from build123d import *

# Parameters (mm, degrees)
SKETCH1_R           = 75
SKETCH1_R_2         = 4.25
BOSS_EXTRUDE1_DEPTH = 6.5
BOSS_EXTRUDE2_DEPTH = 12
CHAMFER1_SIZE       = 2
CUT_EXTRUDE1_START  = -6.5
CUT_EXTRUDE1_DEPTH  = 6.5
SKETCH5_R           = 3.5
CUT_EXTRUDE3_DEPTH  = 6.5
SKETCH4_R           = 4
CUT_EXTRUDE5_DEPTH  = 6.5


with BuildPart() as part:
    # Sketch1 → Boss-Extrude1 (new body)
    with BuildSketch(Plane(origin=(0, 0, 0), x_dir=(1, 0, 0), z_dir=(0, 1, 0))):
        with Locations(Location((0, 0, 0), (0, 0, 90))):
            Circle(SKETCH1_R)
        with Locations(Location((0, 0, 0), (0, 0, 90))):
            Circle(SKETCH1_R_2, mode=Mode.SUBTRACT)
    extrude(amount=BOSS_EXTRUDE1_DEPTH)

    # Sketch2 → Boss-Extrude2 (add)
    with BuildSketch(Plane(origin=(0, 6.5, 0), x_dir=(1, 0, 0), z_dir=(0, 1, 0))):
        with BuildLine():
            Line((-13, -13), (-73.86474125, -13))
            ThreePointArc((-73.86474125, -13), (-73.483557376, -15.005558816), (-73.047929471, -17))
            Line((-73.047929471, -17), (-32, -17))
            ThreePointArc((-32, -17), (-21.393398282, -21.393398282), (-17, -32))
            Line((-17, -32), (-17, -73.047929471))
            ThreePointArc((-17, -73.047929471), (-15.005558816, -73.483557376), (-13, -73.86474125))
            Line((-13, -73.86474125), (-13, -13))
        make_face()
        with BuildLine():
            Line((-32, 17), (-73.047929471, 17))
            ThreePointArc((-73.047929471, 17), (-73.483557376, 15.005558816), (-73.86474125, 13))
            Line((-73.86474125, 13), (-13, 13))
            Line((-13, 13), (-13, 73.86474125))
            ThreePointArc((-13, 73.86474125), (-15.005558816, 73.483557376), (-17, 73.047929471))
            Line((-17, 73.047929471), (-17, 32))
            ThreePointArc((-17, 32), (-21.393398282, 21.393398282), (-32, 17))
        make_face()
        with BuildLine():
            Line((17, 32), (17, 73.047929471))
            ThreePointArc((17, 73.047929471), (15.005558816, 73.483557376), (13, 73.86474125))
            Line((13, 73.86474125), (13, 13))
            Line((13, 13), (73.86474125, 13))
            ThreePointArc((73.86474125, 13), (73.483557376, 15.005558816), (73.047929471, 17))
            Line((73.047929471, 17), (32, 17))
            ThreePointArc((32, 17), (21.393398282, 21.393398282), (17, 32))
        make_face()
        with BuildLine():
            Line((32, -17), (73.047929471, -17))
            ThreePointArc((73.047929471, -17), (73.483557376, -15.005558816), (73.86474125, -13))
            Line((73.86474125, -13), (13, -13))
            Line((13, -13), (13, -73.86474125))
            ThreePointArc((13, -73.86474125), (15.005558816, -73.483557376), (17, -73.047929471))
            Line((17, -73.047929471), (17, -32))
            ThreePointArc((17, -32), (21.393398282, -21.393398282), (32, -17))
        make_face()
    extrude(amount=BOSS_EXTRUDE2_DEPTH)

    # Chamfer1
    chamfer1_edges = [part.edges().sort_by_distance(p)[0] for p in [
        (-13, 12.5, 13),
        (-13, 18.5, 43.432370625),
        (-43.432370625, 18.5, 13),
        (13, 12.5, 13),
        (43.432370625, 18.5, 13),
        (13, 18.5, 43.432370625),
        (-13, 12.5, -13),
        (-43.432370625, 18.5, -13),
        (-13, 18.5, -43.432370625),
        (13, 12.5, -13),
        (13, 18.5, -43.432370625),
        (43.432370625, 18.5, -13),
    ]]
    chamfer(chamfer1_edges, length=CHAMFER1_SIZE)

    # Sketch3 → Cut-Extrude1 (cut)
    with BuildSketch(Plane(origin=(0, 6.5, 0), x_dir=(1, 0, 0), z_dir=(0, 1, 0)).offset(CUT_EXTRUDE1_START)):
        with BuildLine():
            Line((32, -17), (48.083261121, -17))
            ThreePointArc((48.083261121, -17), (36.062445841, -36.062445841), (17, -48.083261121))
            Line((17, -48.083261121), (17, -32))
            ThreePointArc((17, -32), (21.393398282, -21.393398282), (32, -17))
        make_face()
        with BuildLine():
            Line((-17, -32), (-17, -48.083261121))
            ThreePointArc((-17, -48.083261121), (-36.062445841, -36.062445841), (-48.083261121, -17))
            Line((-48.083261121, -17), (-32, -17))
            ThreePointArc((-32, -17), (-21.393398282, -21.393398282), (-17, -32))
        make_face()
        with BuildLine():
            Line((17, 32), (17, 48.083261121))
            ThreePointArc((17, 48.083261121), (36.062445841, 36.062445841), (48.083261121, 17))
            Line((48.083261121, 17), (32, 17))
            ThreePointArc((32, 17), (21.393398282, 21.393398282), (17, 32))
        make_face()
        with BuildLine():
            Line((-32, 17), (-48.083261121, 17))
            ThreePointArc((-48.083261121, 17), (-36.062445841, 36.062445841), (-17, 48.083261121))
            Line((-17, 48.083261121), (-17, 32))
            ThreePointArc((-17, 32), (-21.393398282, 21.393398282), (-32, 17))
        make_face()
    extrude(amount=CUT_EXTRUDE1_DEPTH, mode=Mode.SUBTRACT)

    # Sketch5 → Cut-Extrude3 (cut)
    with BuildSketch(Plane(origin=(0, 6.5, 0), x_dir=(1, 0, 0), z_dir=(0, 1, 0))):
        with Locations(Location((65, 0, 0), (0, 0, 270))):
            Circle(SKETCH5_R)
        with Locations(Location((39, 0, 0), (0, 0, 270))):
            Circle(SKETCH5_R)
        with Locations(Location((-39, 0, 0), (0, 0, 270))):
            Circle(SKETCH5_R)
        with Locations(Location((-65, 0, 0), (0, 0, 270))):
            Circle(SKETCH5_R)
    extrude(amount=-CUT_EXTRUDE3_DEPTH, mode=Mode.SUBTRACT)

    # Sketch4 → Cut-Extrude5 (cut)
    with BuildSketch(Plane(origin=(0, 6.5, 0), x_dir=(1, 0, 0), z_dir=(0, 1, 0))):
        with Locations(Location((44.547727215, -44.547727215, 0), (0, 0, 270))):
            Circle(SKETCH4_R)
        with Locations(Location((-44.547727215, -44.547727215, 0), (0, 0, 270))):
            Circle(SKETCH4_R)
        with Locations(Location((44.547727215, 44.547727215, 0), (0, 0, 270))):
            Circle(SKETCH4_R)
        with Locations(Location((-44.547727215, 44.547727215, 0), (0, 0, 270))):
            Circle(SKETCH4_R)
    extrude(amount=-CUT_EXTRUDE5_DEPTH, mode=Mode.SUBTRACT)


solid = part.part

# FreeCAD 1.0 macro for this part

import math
import FreeCAD as App
import Part
import Sketcher


def edges_at(feature, points):
    """Names of the edges that pass closest to the given points."""
    edges = feature.Shape.Edges
    near = lambda p: min(range(len(edges)), key=lambda i: edges[i].distToShape(Part.Vertex(*p))[0])
    return sorted({f"Edge{near(p) + 1}" for p in points})

doc = App.newDocument("Part")
body = doc.addObject("PartDesign::Body", "Body")

sketch1 = doc.addObject("Sketcher::SketchObject", "Sketch")
body.addObject(sketch1)
sketch1.AttachmentSupport = (doc.XZ_Plane, [""])
sketch1.MapMode = "FlatFace"
sketch1.addGeometry([
    Part.Circle(App.Vector(0, 0, 0), App.Vector(0, 0, 1), 75),
    Part.Circle(App.Vector(0, 0, 0), App.Vector(0, 0, 1), 4.2),
], False)
sketch1.addConstraint([
    Sketcher.Constraint("Coincident", 0, 3, -1, 1),
    Sketcher.Constraint("Coincident", 1, 3, -1, 1),
    Sketcher.Constraint("Diameter", 0, 150.0),
    Sketcher.Constraint("Diameter", 1, 8.5),
])
pad1 = doc.addObject("PartDesign::Pad", "Pad")
body.addObject(pad1)
pad1.Profile = sketch1
pad1.Length = 6.5
pad1.Reversed = True

sketch2 = doc.addObject("Sketcher::SketchObject", "Sketch001")
body.addObject(sketch2)
sketch2.AttachmentSupport = (doc.XZ_Plane, [""])
sketch2.MapMode = "FlatFace"
sketch2.AttachmentOffset = App.Placement(App.Vector(0, 0, -6.5), App.Rotation())
sketch2.addGeometry([
    Part.LineSegment(App.Vector(-13, 13, 0), App.Vector(-73.9, 13, 0)),
    Part.ArcOfCircle(Part.Circle(App.Vector(0, 0, 0), App.Vector(0, 0, 1), 75), math.radians(166.9), math.radians(170.02)),
    Part.LineSegment(App.Vector(-73, 17, 0), App.Vector(-32, 17, 0)),
    Part.ArcOfCircle(Part.Circle(App.Vector(-32, 32, 0), App.Vector(0, 0, 1), 15), math.radians(-90), math.radians(0)),
    Part.LineSegment(App.Vector(-17, 32, 0), App.Vector(-17, 73, 0)),
    Part.ArcOfCircle(Part.Circle(App.Vector(0, 0, 0), App.Vector(0, 0, 1), 75), math.radians(99.98), math.radians(103.1)),
    Part.LineSegment(App.Vector(-13, 73.9, 0), App.Vector(-13, 13, 0)),
    Part.LineSegment(App.Vector(-32, -17, 0), App.Vector(-73, -17, 0)),
    Part.ArcOfCircle(Part.Circle(App.Vector(0, 0, 0), App.Vector(0, 0, 1), 75), math.radians(-170.02), math.radians(-166.9)),
    Part.LineSegment(App.Vector(-73.9, -13, 0), App.Vector(-13, -13, 0)),
    Part.LineSegment(App.Vector(-13, -13, 0), App.Vector(-13, -73.9, 0)),
    Part.ArcOfCircle(Part.Circle(App.Vector(0, 0, 0), App.Vector(0, 0, 1), 75), math.radians(-103.1), math.radians(-99.98)),
    Part.LineSegment(App.Vector(-17, -73, 0), App.Vector(-17, -32, 0)),
    Part.ArcOfCircle(Part.Circle(App.Vector(-32, -32, 0), App.Vector(0, 0, 1), 15), math.radians(0), math.radians(90)),
    Part.LineSegment(App.Vector(17, -32, 0), App.Vector(17, -73, 0)),
    Part.ArcOfCircle(Part.Circle(App.Vector(0, 0, 0), App.Vector(0, 0, 1), 75), math.radians(-80.02), math.radians(-76.9)),
    Part.LineSegment(App.Vector(13, -73.9, 0), App.Vector(13, -13, 0)),
    Part.LineSegment(App.Vector(13, -13, 0), App.Vector(73.9, -13, 0)),
    Part.ArcOfCircle(Part.Circle(App.Vector(0, 0, 0), App.Vector(0, 0, 1), 75), math.radians(-13.1), math.radians(-9.98)),
    Part.LineSegment(App.Vector(73, -17, 0), App.Vector(32, -17, 0)),
    Part.ArcOfCircle(Part.Circle(App.Vector(32, -32, 0), App.Vector(0, 0, 1), 15), math.radians(90), math.radians(180)),
    Part.LineSegment(App.Vector(32, 17, 0), App.Vector(73, 17, 0)),
    Part.ArcOfCircle(Part.Circle(App.Vector(0, 0, 0), App.Vector(0, 0, 1), 75), math.radians(9.98), math.radians(13.1)),
    Part.LineSegment(App.Vector(73.9, 13, 0), App.Vector(13, 13, 0)),
    Part.LineSegment(App.Vector(13, 13, 0), App.Vector(13, 73.9, 0)),
    Part.ArcOfCircle(Part.Circle(App.Vector(0, 0, 0), App.Vector(0, 0, 1), 75), math.radians(76.9), math.radians(80.02)),
    Part.LineSegment(App.Vector(17, 73, 0), App.Vector(17, 32, 0)),
    Part.ArcOfCircle(Part.Circle(App.Vector(32, 32, 0), App.Vector(0, 0, 1), 15), math.radians(180), math.radians(270)),
], False)
sketch2.addConstraint([
    Sketcher.Constraint("Coincident", 0, 2, 1, 2),
    Sketcher.Constraint("Coincident", 1, 1, 2, 1),
    Sketcher.Constraint("Tangent", 2, 2, 3, 1),
    Sketcher.Constraint("Tangent", 3, 2, 4, 1),
    Sketcher.Constraint("Coincident", 4, 2, 5, 2),
    Sketcher.Constraint("Coincident", 5, 1, 6, 1),
    Sketcher.Constraint("Coincident", 6, 2, 0, 1),
    Sketcher.Constraint("Coincident", 7, 2, 8, 2),
    Sketcher.Constraint("Coincident", 8, 1, 9, 1),
    Sketcher.Constraint("Coincident", 9, 2, 10, 1),
    Sketcher.Constraint("Coincident", 10, 2, 11, 2),
    Sketcher.Constraint("Coincident", 11, 1, 12, 1),
    Sketcher.Constraint("Tangent", 12, 2, 13, 1),
    Sketcher.Constraint("Tangent", 13, 2, 7, 1),
    Sketcher.Constraint("Coincident", 14, 2, 15, 2),
    Sketcher.Constraint("Coincident", 15, 1, 16, 1),
    Sketcher.Constraint("Coincident", 16, 2, 17, 1),
    Sketcher.Constraint("Coincident", 17, 2, 18, 2),
    Sketcher.Constraint("Coincident", 18, 1, 19, 1),
    Sketcher.Constraint("Tangent", 19, 2, 20, 1),
    Sketcher.Constraint("Tangent", 20, 2, 14, 1),
    Sketcher.Constraint("Coincident", 21, 2, 22, 2),
    Sketcher.Constraint("Coincident", 22, 1, 23, 1),
    Sketcher.Constraint("Coincident", 23, 2, 24, 1),
    Sketcher.Constraint("Coincident", 24, 2, 25, 2),
    Sketcher.Constraint("Coincident", 25, 1, 26, 1),
    Sketcher.Constraint("Tangent", 26, 2, 27, 1),
    Sketcher.Constraint("Tangent", 27, 2, 21, 1),
    Sketcher.Constraint("Horizontal", 0),
    Sketcher.Constraint("Horizontal", 2),
    Sketcher.Constraint("Vertical", 4),
    Sketcher.Constraint("Vertical", 6),
    Sketcher.Constraint("Horizontal", 7),
    Sketcher.Constraint("Horizontal", 9),
    Sketcher.Constraint("Vertical", 10),
    Sketcher.Constraint("Vertical", 12),
    Sketcher.Constraint("Vertical", 14),
    Sketcher.Constraint("Vertical", 16),
    Sketcher.Constraint("Horizontal", 17),
    Sketcher.Constraint("Horizontal", 19),
    Sketcher.Constraint("Horizontal", 21),
    Sketcher.Constraint("Horizontal", 23),
    Sketcher.Constraint("Vertical", 24),
    Sketcher.Constraint("Vertical", 26),
    Sketcher.Constraint("Coincident", 1, 3, -1, 1),
    Sketcher.Constraint("Coincident", 5, 3, -1, 1),
    Sketcher.Constraint("Coincident", 8, 3, -1, 1),
    Sketcher.Constraint("Coincident", 11, 3, -1, 1),
    Sketcher.Constraint("Coincident", 15, 3, -1, 1),
    Sketcher.Constraint("Coincident", 18, 3, -1, 1),
    Sketcher.Constraint("Coincident", 22, 3, -1, 1),
    Sketcher.Constraint("Coincident", 25, 3, -1, 1),
    Sketcher.Constraint("Equal", 1, 5),
    Sketcher.Constraint("Equal", 5, 8),
    Sketcher.Constraint("Equal", 8, 11),
    Sketcher.Constraint("Equal", 3, 13),
    Sketcher.Constraint("Equal", 11, 15),
    Sketcher.Constraint("Equal", 15, 18),
    Sketcher.Constraint("Equal", 13, 20),
    Sketcher.Constraint("Equal", 18, 22),
    Sketcher.Constraint("Equal", 22, 25),
    Sketcher.Constraint("Equal", 20, 27),
    Sketcher.Constraint("Symmetric", 3, 3, 20, 3, -1, 1),
    Sketcher.Constraint("Symmetric", 13, 3, 27, 3, -1, 1),
    Sketcher.Constraint("Symmetric", 6, 2, 16, 2, -1, 1),
    Sketcher.Constraint("Symmetric", 9, 2, 23, 2, -1, 1),
    Sketcher.Constraint("Symmetric", 13, 3, 20, 3, -2),
    Sketcher.Constraint("Symmetric", 9, 2, 16, 2, -2),
    Sketcher.Constraint("Equal", 21, 4),
    Sketcher.Constraint("Equal", 23, 6),
    Sketcher.Constraint("Radius", 1, 74.999999),
    Sketcher.Constraint("Radius", 3, 15.0),
    Sketcher.Constraint("DistanceX", 3, 3, -1, 1, 32.0),
    Sketcher.Constraint("DistanceY", -1, 1, 0, 2, 13.0),
])
pad2 = doc.addObject("PartDesign::Pad", "Pad001")
body.addObject(pad2)
pad2.Profile = sketch2
pad2.Length = 12
pad2.Reversed = True
doc.recompute()

chamfer = doc.addObject("PartDesign::Chamfer", "Chamfer")
body.addObject(chamfer)
chamfer.Base = (pad2, edges_at(pad2, [
    (-13, 12.5, 13),
    (-13, 18.5, 43.432),
    (-43.432, 18.5, 13),
    (13, 12.5, 13),
    (43.432, 18.5, 13),
    (13, 18.5, 43.432),
    (-13, 12.5, -13),
    (-43.432, 18.5, -13),
    (-13, 18.5, -43.432),
    (13, 12.5, -13),
    (13, 18.5, -43.432),
    (43.432, 18.5, -13),
]))
chamfer.Size = 2

sketch3 = doc.addObject("Sketcher::SketchObject", "Sketch002")
body.addObject(sketch3)
sketch3.AttachmentSupport = (doc.XZ_Plane, [""])
sketch3.MapMode = "FlatFace"
sketch3.addGeometry([
    Part.LineSegment(App.Vector(48, 17, 0), App.Vector(32, 17, 0)),
    Part.ArcOfCircle(Part.Circle(App.Vector(32, 32, 0), App.Vector(0, 0, 1), 15), math.radians(180), math.radians(270)),
    Part.LineSegment(App.Vector(17, 32, 0), App.Vector(17, 48, 0)),
    Part.ArcOfCircle(Part.Circle(App.Vector(0, 0, 0), App.Vector(0, 0, 1), 51), math.radians(19), math.radians(71)),
    Part.LineSegment(App.Vector(-17, 48, 0), App.Vector(-17, 32, 0)),
    Part.ArcOfCircle(Part.Circle(App.Vector(-32, 32, 0), App.Vector(0, 0, 1), 15), math.radians(-90), math.radians(0)),
    Part.LineSegment(App.Vector(-32, 17, 0), App.Vector(-48, 17, 0)),
    Part.ArcOfCircle(Part.Circle(App.Vector(0, 0, 0), App.Vector(0, 0, 1), 51), math.radians(109), math.radians(161)),
    Part.LineSegment(App.Vector(17, -48, 0), App.Vector(17, -32, 0)),
    Part.ArcOfCircle(Part.Circle(App.Vector(32, -32, 0), App.Vector(0, 0, 1), 15), math.radians(90), math.radians(180)),
    Part.LineSegment(App.Vector(32, -17, 0), App.Vector(48, -17, 0)),
    Part.ArcOfCircle(Part.Circle(App.Vector(0, 0, 0), App.Vector(0, 0, 1), 51), math.radians(-71), math.radians(-19)),
    Part.LineSegment(App.Vector(-48, -17, 0), App.Vector(-32, -17, 0)),
    Part.ArcOfCircle(Part.Circle(App.Vector(-32, -32, 0), App.Vector(0, 0, 1), 15), math.radians(0), math.radians(90)),
    Part.LineSegment(App.Vector(-17, -32, 0), App.Vector(-17, -48, 0)),
    Part.ArcOfCircle(Part.Circle(App.Vector(0, 0, 0), App.Vector(0, 0, 1), 51), math.radians(-161), math.radians(-109)),
], False)
sketch3.addConstraint([
    Sketcher.Constraint("Tangent", 0, 2, 1, 2),
    Sketcher.Constraint("Tangent", 1, 1, 2, 1),
    Sketcher.Constraint("Coincident", 2, 2, 3, 2),
    Sketcher.Constraint("Coincident", 3, 1, 0, 1),
    Sketcher.Constraint("Tangent", 4, 2, 5, 2),
    Sketcher.Constraint("Tangent", 5, 1, 6, 1),
    Sketcher.Constraint("Coincident", 6, 2, 7, 2),
    Sketcher.Constraint("Coincident", 7, 1, 4, 1),
    Sketcher.Constraint("Tangent", 8, 2, 9, 2),
    Sketcher.Constraint("Tangent", 9, 1, 10, 1),
    Sketcher.Constraint("Coincident", 10, 2, 11, 2),
    Sketcher.Constraint("Coincident", 11, 1, 8, 1),
    Sketcher.Constraint("Tangent", 12, 2, 13, 2),
    Sketcher.Constraint("Tangent", 13, 1, 14, 1),
    Sketcher.Constraint("Coincident", 14, 2, 15, 2),
    Sketcher.Constraint("Coincident", 15, 1, 12, 1),
    Sketcher.Constraint("Horizontal", 0),
    Sketcher.Constraint("Vertical", 2),
    Sketcher.Constraint("Vertical", 4),
    Sketcher.Constraint("Horizontal", 6),
    Sketcher.Constraint("Vertical", 8),
    Sketcher.Constraint("Horizontal", 10),
    Sketcher.Constraint("Horizontal", 12),
    Sketcher.Constraint("Vertical", 14),
    Sketcher.Constraint("Coincident", 3, 3, -1, 1),
    Sketcher.Constraint("Coincident", 7, 3, -1, 1),
    Sketcher.Constraint("Coincident", 11, 3, -1, 1),
    Sketcher.Constraint("Coincident", 15, 3, -1, 1),
    Sketcher.Constraint("Equal", 1, 5),
    Sketcher.Constraint("Equal", 3, 7),
    Sketcher.Constraint("Equal", 5, 9),
    Sketcher.Constraint("Equal", 7, 11),
    Sketcher.Constraint("Equal", 9, 13),
    Sketcher.Constraint("Equal", 11, 15),
    Sketcher.Constraint("Symmetric", 5, 3, 9, 3, -1, 1),
    Sketcher.Constraint("Symmetric", 1, 3, 13, 3, -1, 1),
    Sketcher.Constraint("Symmetric", 1, 3, 5, 3, -2),
    Sketcher.Constraint("Equal", 12, 2),
    Sketcher.Constraint("Radius", 1, 15.0),
    Sketcher.Constraint("Radius", 3, 51.0),
    Sketcher.Constraint("DistanceX", -1, 1, 1, 3, 32.0),
])
pocket1 = doc.addObject("PartDesign::Pocket", "Pocket")
body.addObject(pocket1)
pocket1.Profile = sketch3
pocket1.Length = 6.5

sketch4 = doc.addObject("Sketcher::SketchObject", "Sketch003")
body.addObject(sketch4)
sketch4.AttachmentSupport = (doc.XZ_Plane, [""])
sketch4.MapMode = "FlatFace"
sketch4.AttachmentOffset = App.Placement(App.Vector(0, 0, -6.5), App.Rotation())
sketch4.addGeometry([
    Part.Circle(App.Vector(65, 0, 0), App.Vector(0, 0, 1), 3.5),
    Part.Circle(App.Vector(39, 0, 0), App.Vector(0, 0, 1), 3.5),
    Part.Circle(App.Vector(-39, 0, 0), App.Vector(0, 0, 1), 3.5),
    Part.Circle(App.Vector(-65, 0, 0), App.Vector(0, 0, 1), 3.5),
], False)
sketch4.addConstraint([
    Sketcher.Constraint("Equal", 0, 1),
    Sketcher.Constraint("Equal", 1, 2),
    Sketcher.Constraint("Equal", 2, 3),
    Sketcher.Constraint("Symmetric", 1, 3, 2, 3, -1, 1),
    Sketcher.Constraint("Symmetric", 0, 3, 3, 3, -1, 1),
    Sketcher.Constraint("PointOnObject", 0, 3, -1),
    Sketcher.Constraint("PointOnObject", 1, 3, -1),
    Sketcher.Constraint("Diameter", 0, 7.0),
    Sketcher.Constraint("DistanceX", -1, 1, 0, 3, 65.0),
    Sketcher.Constraint("DistanceX", -1, 1, 1, 3, 39.0),
])
pocket2 = doc.addObject("PartDesign::Pocket", "Pocket001")
body.addObject(pocket2)
pocket2.Profile = sketch4
pocket2.Length = 6.5
pocket2.Reversed = True

sketch5 = doc.addObject("Sketcher::SketchObject", "Sketch004")
body.addObject(sketch5)
sketch5.AttachmentSupport = (doc.XZ_Plane, [""])
sketch5.MapMode = "FlatFace"
sketch5.AttachmentOffset = App.Placement(App.Vector(0, 0, -6.5), App.Rotation())
sketch5.addGeometry([
    Part.Circle(App.Vector(44.5, 44.5, 0), App.Vector(0, 0, 1), 4),
    Part.Circle(App.Vector(-44.5, 44.5, 0), App.Vector(0, 0, 1), 4),
    Part.Circle(App.Vector(44.5, -44.5, 0), App.Vector(0, 0, 1), 4),
    Part.Circle(App.Vector(-44.5, -44.5, 0), App.Vector(0, 0, 1), 4),
], False)
sketch5.addConstraint([
    Sketcher.Constraint("Equal", 0, 1),
    Sketcher.Constraint("Equal", 1, 2),
    Sketcher.Constraint("Equal", 2, 3),
    Sketcher.Constraint("Symmetric", 1, 3, 2, 3, -1, 1),
    Sketcher.Constraint("Symmetric", 0, 3, 3, 3, -1, 1),
    Sketcher.Constraint("Symmetric", 0, 3, 1, 3, -2),
    Sketcher.Constraint("Diameter", 0, 8.0),
    Sketcher.Constraint("DistanceX", -1, 1, 0, 3, 44.547727),
    Sketcher.Constraint("DistanceY", -1, 1, 0, 3, 44.547727),
])
pocket3 = doc.addObject("PartDesign::Pocket", "Pocket002")
body.addObject(pocket3)
pocket3.Profile = sketch5
pocket3.Length = 6.5
pocket3.Reversed = True

doc.recompute()
